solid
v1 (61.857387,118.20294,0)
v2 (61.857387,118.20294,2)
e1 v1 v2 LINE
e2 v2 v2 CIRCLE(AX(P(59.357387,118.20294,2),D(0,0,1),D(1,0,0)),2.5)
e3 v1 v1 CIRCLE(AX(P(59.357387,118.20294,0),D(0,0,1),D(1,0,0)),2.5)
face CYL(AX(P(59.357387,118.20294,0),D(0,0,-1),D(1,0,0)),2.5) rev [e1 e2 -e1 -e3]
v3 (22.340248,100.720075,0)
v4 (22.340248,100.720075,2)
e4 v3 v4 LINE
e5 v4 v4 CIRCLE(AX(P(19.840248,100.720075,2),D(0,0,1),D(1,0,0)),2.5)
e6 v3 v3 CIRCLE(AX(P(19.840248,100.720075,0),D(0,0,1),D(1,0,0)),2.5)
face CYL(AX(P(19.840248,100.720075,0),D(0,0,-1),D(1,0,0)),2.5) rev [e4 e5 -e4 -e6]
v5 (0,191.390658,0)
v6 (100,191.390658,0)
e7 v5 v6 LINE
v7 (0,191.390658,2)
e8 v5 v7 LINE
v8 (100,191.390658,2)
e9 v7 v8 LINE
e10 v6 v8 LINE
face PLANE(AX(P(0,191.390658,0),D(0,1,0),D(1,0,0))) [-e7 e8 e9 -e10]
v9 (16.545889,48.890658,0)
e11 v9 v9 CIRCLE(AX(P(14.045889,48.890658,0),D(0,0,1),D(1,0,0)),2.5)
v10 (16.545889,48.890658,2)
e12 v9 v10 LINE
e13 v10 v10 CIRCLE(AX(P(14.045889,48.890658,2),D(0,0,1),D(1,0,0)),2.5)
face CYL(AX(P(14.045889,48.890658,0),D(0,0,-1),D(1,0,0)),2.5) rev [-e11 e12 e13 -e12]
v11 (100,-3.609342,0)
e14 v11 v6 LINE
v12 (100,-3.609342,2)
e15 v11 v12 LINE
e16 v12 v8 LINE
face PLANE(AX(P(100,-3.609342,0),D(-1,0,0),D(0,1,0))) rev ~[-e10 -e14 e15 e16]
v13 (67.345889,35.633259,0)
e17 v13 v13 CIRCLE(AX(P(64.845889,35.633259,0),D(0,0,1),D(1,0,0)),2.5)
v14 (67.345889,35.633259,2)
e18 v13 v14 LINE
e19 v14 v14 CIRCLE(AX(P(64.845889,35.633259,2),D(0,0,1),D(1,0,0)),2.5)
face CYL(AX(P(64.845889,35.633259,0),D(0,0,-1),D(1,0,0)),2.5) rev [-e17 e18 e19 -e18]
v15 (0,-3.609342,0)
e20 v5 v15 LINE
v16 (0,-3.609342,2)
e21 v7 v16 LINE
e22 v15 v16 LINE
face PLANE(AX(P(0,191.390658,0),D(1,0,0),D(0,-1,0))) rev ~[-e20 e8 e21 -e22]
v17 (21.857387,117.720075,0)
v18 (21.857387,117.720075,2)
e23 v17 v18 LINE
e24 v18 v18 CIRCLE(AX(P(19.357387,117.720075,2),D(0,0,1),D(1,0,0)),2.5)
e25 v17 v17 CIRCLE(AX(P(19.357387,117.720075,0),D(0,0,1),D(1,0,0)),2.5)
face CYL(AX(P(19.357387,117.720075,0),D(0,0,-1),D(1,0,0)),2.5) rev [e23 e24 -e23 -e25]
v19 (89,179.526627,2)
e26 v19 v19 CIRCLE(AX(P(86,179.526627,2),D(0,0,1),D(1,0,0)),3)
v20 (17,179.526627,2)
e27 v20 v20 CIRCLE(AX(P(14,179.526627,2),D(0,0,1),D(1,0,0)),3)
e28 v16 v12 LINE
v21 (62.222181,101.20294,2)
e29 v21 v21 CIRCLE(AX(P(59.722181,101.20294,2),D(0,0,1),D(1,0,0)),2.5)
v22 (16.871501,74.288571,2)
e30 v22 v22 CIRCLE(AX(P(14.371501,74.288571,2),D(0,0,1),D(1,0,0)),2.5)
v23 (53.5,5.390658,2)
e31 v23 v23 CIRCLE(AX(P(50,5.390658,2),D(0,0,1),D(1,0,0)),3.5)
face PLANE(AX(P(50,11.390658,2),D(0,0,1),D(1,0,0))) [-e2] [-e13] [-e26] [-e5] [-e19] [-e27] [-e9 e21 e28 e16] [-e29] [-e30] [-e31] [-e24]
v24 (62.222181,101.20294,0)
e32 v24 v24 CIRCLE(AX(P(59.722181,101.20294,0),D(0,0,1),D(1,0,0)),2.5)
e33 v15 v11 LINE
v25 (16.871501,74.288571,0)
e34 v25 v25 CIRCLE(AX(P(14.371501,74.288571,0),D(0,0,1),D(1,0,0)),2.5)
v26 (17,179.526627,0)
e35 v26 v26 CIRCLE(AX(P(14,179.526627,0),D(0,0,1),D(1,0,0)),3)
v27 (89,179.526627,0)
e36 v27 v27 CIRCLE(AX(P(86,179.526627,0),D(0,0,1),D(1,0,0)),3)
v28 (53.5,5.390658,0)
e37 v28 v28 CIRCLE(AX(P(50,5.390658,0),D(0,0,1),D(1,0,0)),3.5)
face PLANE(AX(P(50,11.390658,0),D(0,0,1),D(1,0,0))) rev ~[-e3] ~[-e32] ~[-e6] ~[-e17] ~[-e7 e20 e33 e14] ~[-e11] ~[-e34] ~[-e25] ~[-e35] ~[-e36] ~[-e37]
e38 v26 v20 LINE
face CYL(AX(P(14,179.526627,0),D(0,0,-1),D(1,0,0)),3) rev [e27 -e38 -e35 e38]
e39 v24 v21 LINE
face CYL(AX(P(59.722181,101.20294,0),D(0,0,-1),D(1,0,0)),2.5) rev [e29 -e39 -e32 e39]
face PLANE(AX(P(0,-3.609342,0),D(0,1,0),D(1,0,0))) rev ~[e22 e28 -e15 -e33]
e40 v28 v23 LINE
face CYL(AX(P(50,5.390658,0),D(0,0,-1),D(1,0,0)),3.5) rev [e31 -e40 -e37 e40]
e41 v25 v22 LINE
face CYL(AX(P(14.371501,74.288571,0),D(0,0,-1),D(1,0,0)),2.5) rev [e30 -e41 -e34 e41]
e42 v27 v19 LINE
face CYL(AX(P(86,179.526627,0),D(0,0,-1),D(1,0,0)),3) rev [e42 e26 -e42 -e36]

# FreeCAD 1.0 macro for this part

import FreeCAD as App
import Part
import Sketcher

V = App.Vector


def add_polygon(sketch, points):
    """Adds a closed chain of lines whose ends are joined by coincident constraints."""
    first, n = sketch.GeometryCount, len(points)
    for a, b in zip(points, points[1:] + points[:1]):
        sketch.addGeometry(Part.LineSegment(App.Vector(*a, 0), App.Vector(*b, 0)), False)
    for i in range(n):
        sketch.addConstraint(Sketcher.Constraint("Coincident", first + i, 2, first + (i + 1) % n, 1))

doc = App.newDocument("Part")
body = doc.addObject("PartDesign::Body", "Body")

sketch1 = doc.addObject("Sketcher::SketchObject", "Sketch")
body.addObject(sketch1)
sketch1.AttachmentSupport = (doc.XY_Plane, [""])
sketch1.MapMode = "FlatFace"
add_polygon(sketch1, [(0, -3.6), (100, -3.6), (100, 191.4), (0, 191.4)])
sketch1.addGeometry(Part.Circle(V(14, 48.9, 0), V(0, 0, 1), 2.5), False)
sketch1.addGeometry(Part.Circle(V(14.4, 74.3, 0), V(0, 0, 1), 2.5), False)
sketch1.addGeometry(Part.Circle(V(50, 5.4, 0), V(0, 0, 1), 3.5), False)
sketch1.addGeometry(Part.Circle(V(64.8, 35.6, 0), V(0, 0, 1), 2.5), False)
sketch1.addGeometry(Part.Circle(V(19.8, 100.7, 0), V(0, 0, 1), 2.5), False)
sketch1.addGeometry(Part.Circle(V(19.4, 117.7, 0), V(0, 0, 1), 2.5), False)
sketch1.addGeometry(Part.Circle(V(14, 179.5, 0), V(0, 0, 1), 3), False)
sketch1.addGeometry(Part.Circle(V(59.7, 101.2, 0), V(0, 0, 1), 2.5), False)
sketch1.addGeometry(Part.Circle(V(59.4, 118.2, 0), V(0, 0, 1), 2.5), False)
sketch1.addGeometry(Part.Circle(V(86, 179.5, 0), V(0, 0, 1), 3), False)
sketch1.addConstraint([
    Sketcher.Constraint("Horizontal", 0),
    Sketcher.Constraint("Vertical", 1),
    Sketcher.Constraint("Horizontal", 2),
    Sketcher.Constraint("Vertical", 3),
    Sketcher.Constraint("Equal", 4, 5),
    Sketcher.Constraint("Equal", 5, 7),
    Sketcher.Constraint("Equal", 7, 8),
    Sketcher.Constraint("Equal", 8, 9),
    Sketcher.Constraint("Equal", 9, 11),
    Sketcher.Constraint("Equal", 11, 12),
    Sketcher.Constraint("Equal", 10, 13),
    Sketcher.Constraint("PointOnObject", 2, 2, -2),
    Sketcher.Constraint("Horizontal", 10, 3, 13, 3),
    Sketcher.Constraint("Diameter", 4, 5.0),
    Sketcher.Constraint("Diameter", 6, 7.0),
    Sketcher.Constraint("Diameter", 10, 6.0),
    Sketcher.Constraint("DistanceX", 0, 1, 0, 2, 100.0),
    Sketcher.Constraint("DistanceY", 1, 1, 1, 2, 195.0),
    Sketcher.Constraint("DistanceX", -1, 1, 6, 3, 50.0),
    Sketcher.Constraint("DistanceX", -1, 1, 10, 3, 14.0),
    Sketcher.Constraint("DistanceX", -1, 1, 13, 3, 86.0),
    Sketcher.Constraint("DistanceY", 8, 3, 9, 3, 17.0),
    Sketcher.Constraint("DistanceY", 11, 3, 12, 3, 17.0),
    Sketcher.Constraint("DistanceX", 9, 3, 12, 3, 40.0),
    Sketcher.Constraint("DistanceY", 0, 2, 6, 3, 9.0),
    Sketcher.Constraint("DistanceY", 6, 3, 4, 3, 43.5),
    Sketcher.Constraint("DistanceX", 4, 3, 7, 3, 50.8),
    Sketcher.Constraint("DistanceX", -1, 1, 5, 3, 14.371501),
    Sketcher.Constraint("DistanceY", 6, 3, 7, 3, 30.242601),
    Sketcher.Constraint("DistanceX", 9, 3, 7, 3, 45.488502),
    Sketcher.Constraint("DistanceX", -1, 1, 4, 3, 14.045889),
    Sketcher.Constraint("DistanceY", -1, 1, 4, 3, 48.890658),
    Sketcher.Constraint("DistanceY", -1, 1, 5, 3, 74.288571),
    Sketcher.Constraint("DistanceX", -1, 1, 11, 3, 59.722181),
    Sketcher.Constraint("DistanceY", -1, 1, 11, 3, 101.20294),
    Sketcher.Constraint("DistanceX", 4, 3, 8, 3, 5.794359),
    Sketcher.Constraint("DistanceY", 9, 3, 10, 3, 61.806552),
    Sketcher.Constraint("DistanceY", 4, 3, 10, 3, 130.635969),
])
pad1 = doc.addObject("PartDesign::Pad", "Pad")
body.addObject(pad1)
pad1.Profile = sketch1
pad1.Length = 2

doc.recompute()
